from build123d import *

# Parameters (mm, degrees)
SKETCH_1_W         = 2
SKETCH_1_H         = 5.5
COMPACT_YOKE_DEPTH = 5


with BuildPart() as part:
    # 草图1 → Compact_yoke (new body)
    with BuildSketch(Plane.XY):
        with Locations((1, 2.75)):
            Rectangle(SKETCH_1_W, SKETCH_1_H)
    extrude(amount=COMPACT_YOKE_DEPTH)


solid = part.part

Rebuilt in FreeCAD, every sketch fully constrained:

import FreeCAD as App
import Part
import Sketcher

V = App.Vector

doc = App.newDocument("Part")
body = doc.addObject("PartDesign::Body", "Body")

sketch1 = body.newObject("Sketcher::SketchObject", "Sketch")
sketch1.AttachmentSupport = (doc.getObject("XY_Plane"), [""])
sketch1.MapMode = "FlatFace"
sketch1.addGeometry([
    Part.LineSegment(V(0, 5.5, 0), V(0, 0, 0)),
    Part.LineSegment(V(0, 0, 0), V(2, 0, 0)),
    Part.LineSegment(V(2, 0, 0), V(2, 5.5, 0)),
    Part.LineSegment(V(2, 5.5, 0), V(0, 5.5, 0)),
], False)
sketch1.addConstraint([
    Sketcher.Constraint("Coincident", 0, 2, 1, 1),
    Sketcher.Constraint("Coincident", 1, 2, 2, 1),
    Sketcher.Constraint("Coincident", 2, 2, 3, 1),
    Sketcher.Constraint("Coincident", 3, 2, 0, 1),
    Sketcher.Constraint("Vertical", 0),
    Sketcher.Constraint("Horizontal", 1),
    Sketcher.Constraint("Vertical", 2),
    Sketcher.Constraint("Horizontal", 3),
    Sketcher.Constraint("Coincident", 0, 2, -1, 1),
    Sketcher.Constraint("DistanceX", 1, 1, 1, 2, 2.0),
    Sketcher.Constraint("DistanceY", 0, 2, 0, 1, 5.5),
])
pad1 = body.newObject("PartDesign::Pad", "Pad")
pad1.Profile = sketch1
pad1.Length = 5

doc.recompute()
